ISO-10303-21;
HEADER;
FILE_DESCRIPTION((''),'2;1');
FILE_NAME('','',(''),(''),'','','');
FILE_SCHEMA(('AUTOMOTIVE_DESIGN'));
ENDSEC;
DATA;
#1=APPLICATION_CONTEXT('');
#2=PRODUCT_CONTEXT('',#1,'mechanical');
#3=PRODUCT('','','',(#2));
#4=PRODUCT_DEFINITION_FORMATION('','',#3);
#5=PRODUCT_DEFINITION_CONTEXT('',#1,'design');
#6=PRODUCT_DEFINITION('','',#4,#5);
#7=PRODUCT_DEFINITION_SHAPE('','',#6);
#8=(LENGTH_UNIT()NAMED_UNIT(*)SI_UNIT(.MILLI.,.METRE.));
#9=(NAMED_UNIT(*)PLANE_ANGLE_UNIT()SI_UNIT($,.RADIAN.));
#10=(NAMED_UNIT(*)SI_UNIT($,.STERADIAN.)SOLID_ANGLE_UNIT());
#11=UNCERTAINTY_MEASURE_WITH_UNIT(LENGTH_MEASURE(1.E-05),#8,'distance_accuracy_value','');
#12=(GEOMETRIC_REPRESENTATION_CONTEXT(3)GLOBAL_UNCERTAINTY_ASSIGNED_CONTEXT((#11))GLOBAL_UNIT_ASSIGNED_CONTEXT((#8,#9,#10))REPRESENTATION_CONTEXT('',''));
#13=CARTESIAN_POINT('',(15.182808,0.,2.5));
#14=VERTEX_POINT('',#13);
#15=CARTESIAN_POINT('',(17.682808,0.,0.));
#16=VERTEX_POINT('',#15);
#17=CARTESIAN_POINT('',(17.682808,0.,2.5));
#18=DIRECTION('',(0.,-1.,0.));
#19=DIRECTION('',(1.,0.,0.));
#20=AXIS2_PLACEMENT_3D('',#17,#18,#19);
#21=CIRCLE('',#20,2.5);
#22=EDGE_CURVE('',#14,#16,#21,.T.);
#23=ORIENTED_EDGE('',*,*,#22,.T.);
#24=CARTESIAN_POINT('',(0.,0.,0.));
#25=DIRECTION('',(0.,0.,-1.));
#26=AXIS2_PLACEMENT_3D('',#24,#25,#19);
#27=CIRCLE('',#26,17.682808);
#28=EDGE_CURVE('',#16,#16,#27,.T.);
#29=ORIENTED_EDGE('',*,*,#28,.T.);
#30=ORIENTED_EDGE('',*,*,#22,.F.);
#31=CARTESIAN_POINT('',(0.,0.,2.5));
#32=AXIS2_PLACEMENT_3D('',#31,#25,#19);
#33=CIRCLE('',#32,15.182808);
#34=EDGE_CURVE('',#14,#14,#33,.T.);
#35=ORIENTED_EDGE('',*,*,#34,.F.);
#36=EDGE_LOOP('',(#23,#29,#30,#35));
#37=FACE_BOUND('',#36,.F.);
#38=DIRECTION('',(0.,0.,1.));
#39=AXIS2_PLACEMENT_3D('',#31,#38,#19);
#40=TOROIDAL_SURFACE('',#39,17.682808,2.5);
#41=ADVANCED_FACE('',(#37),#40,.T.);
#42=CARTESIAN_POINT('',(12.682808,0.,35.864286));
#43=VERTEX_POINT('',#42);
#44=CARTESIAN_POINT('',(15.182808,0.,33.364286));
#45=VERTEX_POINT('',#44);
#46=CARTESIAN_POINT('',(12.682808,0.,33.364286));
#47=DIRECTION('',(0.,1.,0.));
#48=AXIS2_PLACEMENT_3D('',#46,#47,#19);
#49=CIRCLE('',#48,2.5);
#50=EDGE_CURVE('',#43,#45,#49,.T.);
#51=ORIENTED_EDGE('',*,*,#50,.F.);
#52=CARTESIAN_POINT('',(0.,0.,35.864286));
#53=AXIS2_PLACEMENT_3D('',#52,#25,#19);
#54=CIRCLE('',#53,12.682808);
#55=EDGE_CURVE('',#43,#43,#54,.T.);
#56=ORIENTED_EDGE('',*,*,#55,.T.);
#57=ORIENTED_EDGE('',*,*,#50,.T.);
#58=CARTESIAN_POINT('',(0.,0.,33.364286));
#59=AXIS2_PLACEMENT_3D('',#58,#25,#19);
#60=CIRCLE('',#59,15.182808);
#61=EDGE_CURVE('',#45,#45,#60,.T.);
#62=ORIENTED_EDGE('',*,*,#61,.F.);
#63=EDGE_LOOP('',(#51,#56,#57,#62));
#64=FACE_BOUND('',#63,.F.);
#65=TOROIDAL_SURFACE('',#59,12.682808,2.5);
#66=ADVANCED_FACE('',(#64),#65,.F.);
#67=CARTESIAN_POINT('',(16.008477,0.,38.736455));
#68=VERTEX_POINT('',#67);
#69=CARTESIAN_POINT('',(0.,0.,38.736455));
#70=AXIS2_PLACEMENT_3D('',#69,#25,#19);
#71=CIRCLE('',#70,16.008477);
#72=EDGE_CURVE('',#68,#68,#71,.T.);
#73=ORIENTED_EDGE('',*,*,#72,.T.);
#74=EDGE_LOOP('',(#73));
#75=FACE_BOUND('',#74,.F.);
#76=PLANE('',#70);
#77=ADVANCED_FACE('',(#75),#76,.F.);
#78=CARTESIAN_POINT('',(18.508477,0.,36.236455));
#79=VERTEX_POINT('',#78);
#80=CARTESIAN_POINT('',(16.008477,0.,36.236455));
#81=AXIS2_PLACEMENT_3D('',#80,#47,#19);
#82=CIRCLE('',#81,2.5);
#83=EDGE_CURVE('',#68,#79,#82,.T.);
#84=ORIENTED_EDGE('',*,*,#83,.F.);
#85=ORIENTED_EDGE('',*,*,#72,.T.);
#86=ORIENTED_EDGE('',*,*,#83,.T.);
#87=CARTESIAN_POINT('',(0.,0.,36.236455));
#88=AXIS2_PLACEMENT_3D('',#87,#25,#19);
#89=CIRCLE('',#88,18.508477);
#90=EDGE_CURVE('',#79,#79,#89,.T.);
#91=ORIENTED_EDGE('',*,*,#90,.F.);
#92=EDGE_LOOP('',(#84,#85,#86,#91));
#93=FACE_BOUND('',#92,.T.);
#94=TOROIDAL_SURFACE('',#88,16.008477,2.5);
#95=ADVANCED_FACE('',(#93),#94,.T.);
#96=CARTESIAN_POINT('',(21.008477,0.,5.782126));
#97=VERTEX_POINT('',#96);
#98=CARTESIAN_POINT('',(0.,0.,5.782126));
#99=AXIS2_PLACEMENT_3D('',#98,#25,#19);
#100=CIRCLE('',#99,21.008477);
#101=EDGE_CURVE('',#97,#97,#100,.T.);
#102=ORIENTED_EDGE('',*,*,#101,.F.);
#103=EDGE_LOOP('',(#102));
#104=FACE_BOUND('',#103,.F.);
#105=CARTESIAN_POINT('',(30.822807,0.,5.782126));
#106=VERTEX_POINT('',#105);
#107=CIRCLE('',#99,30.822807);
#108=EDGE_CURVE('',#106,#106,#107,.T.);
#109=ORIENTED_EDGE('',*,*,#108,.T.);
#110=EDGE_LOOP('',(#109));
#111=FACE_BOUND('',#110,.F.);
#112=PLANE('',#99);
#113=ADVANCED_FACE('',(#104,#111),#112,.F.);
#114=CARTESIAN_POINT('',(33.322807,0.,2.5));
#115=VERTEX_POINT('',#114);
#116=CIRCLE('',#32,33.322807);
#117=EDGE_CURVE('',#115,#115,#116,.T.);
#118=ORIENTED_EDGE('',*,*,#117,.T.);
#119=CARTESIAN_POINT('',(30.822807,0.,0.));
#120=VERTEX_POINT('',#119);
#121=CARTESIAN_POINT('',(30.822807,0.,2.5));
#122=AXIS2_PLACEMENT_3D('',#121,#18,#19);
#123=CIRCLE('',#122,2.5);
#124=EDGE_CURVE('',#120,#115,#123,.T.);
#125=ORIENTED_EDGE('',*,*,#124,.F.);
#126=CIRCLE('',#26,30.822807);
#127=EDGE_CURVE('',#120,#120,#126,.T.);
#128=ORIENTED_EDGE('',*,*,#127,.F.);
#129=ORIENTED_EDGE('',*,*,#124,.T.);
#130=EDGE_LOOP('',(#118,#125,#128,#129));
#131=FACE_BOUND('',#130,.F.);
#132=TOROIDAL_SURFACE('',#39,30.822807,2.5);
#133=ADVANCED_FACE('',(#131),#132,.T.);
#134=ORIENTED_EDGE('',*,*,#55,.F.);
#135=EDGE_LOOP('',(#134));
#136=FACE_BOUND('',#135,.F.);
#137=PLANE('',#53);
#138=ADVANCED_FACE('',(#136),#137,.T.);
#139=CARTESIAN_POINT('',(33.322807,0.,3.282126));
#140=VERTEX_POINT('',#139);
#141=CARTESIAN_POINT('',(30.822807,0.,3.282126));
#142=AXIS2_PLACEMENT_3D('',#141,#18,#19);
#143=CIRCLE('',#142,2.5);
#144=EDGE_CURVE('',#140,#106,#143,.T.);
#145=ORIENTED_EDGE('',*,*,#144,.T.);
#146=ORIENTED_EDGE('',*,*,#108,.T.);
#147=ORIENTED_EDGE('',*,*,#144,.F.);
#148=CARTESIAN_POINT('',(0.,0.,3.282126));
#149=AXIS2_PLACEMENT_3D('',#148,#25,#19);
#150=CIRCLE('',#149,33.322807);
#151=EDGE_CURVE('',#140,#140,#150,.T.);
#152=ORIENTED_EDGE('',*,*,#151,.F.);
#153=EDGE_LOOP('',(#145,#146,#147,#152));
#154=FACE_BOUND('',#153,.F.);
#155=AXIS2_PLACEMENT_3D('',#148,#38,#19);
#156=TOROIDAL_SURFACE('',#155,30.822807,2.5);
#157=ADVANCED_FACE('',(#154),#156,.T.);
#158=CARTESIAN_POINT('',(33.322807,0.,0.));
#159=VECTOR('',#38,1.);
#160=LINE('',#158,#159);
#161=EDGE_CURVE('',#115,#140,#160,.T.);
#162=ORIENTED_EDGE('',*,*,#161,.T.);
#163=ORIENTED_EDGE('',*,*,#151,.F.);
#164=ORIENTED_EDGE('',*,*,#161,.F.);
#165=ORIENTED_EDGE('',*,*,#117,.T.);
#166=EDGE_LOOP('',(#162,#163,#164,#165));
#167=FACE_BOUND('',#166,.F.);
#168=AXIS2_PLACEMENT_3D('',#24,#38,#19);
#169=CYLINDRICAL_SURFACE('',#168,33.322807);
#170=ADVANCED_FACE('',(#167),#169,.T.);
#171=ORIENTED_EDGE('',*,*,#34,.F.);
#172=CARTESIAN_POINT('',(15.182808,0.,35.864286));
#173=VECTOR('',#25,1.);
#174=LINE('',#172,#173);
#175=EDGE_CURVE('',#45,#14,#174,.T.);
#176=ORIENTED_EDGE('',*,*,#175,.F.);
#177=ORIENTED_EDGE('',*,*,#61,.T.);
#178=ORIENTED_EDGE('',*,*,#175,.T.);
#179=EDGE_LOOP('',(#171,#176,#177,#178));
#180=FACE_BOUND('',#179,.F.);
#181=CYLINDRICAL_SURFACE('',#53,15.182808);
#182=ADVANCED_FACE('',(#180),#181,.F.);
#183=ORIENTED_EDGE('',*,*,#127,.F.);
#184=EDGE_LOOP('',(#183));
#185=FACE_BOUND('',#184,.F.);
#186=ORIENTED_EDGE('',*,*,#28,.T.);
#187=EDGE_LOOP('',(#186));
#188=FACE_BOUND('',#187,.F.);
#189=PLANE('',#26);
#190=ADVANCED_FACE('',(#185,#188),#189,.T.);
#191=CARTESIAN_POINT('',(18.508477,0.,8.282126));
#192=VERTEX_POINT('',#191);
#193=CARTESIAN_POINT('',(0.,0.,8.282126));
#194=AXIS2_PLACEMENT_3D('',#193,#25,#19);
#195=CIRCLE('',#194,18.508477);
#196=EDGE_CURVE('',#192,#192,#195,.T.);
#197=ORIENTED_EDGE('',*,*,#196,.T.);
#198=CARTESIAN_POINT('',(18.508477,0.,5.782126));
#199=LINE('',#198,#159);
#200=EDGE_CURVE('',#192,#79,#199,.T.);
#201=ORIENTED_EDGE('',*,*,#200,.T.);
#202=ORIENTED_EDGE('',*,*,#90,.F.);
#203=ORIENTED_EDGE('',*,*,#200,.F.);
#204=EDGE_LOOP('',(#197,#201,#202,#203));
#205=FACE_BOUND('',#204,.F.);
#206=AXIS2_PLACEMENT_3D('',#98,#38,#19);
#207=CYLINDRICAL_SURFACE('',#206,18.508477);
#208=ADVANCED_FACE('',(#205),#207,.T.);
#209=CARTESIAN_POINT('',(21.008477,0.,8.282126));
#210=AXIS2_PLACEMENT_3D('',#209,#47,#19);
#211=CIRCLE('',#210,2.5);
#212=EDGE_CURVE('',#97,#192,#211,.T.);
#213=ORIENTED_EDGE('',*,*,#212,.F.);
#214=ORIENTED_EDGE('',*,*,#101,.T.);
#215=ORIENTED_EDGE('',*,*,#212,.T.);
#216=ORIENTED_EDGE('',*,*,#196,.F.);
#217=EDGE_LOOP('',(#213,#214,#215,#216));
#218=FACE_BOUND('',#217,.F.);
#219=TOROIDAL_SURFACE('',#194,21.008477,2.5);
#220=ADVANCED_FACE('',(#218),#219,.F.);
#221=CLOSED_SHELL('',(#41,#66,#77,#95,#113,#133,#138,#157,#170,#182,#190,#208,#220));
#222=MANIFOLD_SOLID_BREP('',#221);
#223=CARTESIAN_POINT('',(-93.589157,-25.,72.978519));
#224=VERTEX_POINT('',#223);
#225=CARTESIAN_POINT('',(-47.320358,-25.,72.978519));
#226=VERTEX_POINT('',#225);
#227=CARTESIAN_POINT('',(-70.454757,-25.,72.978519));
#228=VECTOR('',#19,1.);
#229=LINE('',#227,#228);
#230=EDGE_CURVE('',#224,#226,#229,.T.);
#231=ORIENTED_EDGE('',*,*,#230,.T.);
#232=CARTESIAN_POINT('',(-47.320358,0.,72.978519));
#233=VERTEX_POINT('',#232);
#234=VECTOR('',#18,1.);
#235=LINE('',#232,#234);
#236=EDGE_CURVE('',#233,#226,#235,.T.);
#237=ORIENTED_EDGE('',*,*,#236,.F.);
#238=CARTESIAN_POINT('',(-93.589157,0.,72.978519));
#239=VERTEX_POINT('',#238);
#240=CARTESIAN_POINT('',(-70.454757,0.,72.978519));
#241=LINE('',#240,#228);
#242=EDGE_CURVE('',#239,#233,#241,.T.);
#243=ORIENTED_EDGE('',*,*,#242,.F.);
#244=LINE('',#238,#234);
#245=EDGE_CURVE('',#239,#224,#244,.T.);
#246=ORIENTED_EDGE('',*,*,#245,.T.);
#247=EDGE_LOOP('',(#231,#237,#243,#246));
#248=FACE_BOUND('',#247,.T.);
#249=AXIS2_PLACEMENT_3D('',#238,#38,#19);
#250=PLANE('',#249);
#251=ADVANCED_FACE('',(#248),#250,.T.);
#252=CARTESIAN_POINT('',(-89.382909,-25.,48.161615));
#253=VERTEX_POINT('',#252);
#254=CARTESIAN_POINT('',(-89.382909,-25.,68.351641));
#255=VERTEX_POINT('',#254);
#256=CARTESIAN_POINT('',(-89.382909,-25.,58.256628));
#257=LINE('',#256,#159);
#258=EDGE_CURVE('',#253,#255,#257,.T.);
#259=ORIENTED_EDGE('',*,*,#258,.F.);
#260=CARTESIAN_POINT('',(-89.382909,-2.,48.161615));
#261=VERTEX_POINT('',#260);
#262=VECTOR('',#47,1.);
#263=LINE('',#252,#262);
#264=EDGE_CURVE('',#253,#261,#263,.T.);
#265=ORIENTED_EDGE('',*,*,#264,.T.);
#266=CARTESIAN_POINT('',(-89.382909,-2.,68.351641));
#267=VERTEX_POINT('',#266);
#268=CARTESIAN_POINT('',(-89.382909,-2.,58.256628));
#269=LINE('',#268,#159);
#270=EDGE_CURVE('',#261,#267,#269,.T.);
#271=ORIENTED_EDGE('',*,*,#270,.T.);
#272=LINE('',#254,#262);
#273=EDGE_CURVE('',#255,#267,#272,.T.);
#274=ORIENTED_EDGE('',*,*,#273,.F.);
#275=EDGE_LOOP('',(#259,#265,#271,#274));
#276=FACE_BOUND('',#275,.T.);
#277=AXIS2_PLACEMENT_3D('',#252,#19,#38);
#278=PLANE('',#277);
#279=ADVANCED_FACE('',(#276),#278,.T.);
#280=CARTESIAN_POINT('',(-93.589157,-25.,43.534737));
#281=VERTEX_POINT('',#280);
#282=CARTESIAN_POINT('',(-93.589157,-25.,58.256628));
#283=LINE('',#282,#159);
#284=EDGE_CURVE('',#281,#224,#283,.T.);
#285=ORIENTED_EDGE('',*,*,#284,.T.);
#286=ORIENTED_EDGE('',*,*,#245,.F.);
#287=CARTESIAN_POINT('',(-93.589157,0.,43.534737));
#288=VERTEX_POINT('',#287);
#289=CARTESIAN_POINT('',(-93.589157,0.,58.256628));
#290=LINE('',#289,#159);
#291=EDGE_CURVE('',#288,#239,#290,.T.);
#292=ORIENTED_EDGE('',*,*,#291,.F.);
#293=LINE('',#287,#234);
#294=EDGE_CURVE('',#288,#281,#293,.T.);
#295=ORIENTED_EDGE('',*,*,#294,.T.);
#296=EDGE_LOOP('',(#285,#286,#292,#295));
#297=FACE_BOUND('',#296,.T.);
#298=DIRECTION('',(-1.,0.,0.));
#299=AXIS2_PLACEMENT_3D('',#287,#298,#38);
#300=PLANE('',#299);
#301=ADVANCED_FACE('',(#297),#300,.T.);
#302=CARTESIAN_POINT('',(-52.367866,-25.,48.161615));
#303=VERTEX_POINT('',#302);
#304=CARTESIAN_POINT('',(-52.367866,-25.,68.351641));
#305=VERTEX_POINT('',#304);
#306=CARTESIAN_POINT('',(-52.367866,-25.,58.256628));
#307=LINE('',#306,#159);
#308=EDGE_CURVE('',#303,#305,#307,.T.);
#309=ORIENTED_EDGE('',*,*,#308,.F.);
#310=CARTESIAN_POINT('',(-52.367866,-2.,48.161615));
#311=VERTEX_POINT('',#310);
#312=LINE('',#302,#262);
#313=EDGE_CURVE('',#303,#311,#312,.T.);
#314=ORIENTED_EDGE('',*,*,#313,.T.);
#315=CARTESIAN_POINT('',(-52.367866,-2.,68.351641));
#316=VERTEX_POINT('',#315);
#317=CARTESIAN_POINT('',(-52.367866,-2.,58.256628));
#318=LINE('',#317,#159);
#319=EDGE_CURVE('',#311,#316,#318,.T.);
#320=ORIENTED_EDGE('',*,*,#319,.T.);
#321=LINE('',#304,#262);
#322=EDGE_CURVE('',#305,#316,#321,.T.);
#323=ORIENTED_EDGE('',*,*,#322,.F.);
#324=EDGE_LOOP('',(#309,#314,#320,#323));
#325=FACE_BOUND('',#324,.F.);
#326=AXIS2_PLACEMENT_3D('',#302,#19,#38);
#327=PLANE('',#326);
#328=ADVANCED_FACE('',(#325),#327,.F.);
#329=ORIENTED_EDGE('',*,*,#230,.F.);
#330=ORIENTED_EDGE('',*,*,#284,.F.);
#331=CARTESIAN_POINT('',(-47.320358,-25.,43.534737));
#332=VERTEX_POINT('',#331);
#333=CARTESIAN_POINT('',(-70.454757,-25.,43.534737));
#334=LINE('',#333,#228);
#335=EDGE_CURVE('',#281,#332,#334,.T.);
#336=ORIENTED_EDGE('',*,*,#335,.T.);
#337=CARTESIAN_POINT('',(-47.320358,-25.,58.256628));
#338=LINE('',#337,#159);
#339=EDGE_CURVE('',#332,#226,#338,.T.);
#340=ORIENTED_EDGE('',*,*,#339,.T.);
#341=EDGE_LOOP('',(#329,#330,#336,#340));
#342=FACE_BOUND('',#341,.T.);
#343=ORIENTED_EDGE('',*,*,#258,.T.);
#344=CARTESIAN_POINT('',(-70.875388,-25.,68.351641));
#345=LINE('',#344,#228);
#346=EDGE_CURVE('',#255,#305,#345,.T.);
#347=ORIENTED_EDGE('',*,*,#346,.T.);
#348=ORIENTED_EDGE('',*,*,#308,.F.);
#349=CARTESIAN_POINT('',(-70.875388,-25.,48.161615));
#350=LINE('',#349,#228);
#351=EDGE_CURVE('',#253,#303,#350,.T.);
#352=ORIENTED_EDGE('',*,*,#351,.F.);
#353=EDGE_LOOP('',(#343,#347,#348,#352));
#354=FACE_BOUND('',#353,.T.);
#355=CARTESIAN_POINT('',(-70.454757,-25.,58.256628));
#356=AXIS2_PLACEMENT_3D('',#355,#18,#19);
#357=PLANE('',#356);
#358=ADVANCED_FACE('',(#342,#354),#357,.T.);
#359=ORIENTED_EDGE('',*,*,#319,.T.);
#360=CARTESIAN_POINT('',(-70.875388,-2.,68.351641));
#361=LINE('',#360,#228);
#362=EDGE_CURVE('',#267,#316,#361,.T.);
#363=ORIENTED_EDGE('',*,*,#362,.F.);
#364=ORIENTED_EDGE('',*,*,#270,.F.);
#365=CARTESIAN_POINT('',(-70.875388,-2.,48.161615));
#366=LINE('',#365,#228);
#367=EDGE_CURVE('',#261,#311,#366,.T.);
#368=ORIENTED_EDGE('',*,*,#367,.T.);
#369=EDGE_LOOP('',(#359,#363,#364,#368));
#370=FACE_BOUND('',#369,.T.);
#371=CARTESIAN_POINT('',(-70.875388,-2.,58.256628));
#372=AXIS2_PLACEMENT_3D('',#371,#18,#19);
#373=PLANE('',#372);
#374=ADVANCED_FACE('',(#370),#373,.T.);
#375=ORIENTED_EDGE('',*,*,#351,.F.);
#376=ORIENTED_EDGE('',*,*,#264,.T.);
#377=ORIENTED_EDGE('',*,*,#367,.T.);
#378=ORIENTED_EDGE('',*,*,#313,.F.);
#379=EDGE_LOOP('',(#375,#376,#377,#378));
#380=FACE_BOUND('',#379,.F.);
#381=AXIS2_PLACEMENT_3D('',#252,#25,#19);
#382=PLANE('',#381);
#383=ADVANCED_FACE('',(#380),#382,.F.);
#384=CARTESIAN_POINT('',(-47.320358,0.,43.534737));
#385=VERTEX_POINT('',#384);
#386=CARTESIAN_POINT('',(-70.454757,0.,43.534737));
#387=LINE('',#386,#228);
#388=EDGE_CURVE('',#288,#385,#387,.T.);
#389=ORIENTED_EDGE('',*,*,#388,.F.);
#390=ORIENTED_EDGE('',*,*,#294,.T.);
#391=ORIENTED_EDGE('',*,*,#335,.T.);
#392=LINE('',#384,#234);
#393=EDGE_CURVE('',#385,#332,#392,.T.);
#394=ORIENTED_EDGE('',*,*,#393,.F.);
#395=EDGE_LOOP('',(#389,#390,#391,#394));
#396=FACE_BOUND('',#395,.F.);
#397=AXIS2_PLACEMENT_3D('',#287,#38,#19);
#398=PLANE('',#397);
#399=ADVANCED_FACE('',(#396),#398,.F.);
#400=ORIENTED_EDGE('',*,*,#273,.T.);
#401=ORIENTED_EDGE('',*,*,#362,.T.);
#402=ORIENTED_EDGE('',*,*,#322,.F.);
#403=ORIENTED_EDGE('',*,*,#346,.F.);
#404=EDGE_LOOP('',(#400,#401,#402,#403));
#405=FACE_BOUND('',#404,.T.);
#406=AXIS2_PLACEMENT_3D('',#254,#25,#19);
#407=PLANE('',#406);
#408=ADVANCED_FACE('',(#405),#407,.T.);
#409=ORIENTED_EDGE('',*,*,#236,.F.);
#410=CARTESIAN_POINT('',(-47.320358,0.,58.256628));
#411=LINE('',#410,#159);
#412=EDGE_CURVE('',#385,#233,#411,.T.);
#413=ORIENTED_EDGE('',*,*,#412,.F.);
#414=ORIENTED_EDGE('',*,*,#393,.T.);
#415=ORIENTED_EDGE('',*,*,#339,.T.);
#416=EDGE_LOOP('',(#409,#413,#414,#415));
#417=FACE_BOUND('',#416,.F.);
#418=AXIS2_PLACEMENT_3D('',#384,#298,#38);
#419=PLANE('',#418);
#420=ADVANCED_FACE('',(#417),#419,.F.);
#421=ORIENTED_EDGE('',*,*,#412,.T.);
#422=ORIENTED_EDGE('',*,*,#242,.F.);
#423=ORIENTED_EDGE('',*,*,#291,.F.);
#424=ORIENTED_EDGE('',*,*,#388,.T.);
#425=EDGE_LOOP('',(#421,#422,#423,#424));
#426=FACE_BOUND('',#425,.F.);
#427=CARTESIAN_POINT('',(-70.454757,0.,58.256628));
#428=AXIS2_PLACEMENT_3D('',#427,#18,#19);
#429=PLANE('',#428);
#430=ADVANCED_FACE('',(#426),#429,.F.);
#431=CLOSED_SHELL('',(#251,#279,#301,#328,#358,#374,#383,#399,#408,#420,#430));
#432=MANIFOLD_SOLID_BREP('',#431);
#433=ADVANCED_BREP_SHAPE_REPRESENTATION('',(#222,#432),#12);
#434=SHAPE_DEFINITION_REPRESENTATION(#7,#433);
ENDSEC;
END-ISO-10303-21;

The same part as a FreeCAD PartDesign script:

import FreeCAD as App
import Part
import Sketcher

V = App.Vector


def edges_at(feature, points):
    """Names of the edges that pass closest to the given points."""
    edges = feature.Shape.Edges
    near = lambda p: min(range(len(edges)), key=lambda i: edges[i].distToShape(Part.Vertex(*p))[0])
    return sorted({f"Edge{near(p) + 1}" for p in points})


def add_polygon(sketch, points):
    """Adds a closed chain of lines whose ends are joined by coincident constraints."""
    first, n = sketch.GeometryCount, len(points)
    for a, b in zip(points, points[1:] + points[:1]):
        sketch.addGeometry(Part.LineSegment(App.Vector(*a, 0), App.Vector(*b, 0)), False)
    for i in range(n):
        sketch.addConstraint(Sketcher.Constraint("Coincident", first + i, 2, first + (i + 1) % n, 1))

doc = App.newDocument("Part")
body = doc.addObject("PartDesign::Body", "Body")

sketch1 = body.newObject("Sketcher::SketchObject", "Sketch")
sketch1.AttachmentSupport = (doc.getObject("XZ_Plane"), [""])
sketch1.MapMode = "FlatFace"
add_polygon(sketch1, [(18.5, 38.7), (0, 38.7), (0, 35.9), (15.2, 35.9), (15.2, 0), (33.3, 0), (33.3, 5.8), (18.5, 5.8)])
sketch1.addConstraint(Sketcher.Constraint("Horizontal", 0))
sketch1.addConstraint(Sketcher.Constraint("Vertical", 1))
sketch1.addConstraint(Sketcher.Constraint("Horizontal", 2))
sketch1.addConstraint(Sketcher.Constraint("Vertical", 3))
sketch1.addConstraint(Sketcher.Constraint("Horizontal", 4))
sketch1.addConstraint(Sketcher.Constraint("Vertical", 5))
sketch1.addConstraint(Sketcher.Constraint("Horizontal", 6))
sketch1.addConstraint(Sketcher.Constraint("Vertical", 7))
sketch1.addConstraint(Sketcher.Constraint("PointOnObject", 0, 2, -2))
sketch1.addConstraint(Sketcher.Constraint("PointOnObject", 3, 2, -1))
sketch1.addConstraint(Sketcher.Constraint("DistanceX", 4, 1, 4, 2, 18.139999))
sketch1.addConstraint(Sketcher.Constraint("DistanceX", 6, 2, 6, 1, 14.81433))
sketch1.addConstraint(Sketcher.Constraint("DistanceY", 1, 2, 1, 1, 2.872169))
sketch1.addConstraint(Sketcher.Constraint("DistanceY", 7, 1, 7, 2, 32.954329))
sketch1.addConstraint(Sketcher.Constraint("DistanceX", 0, 2, 0, 1, 18.508477))
sketch1.addConstraint(Sketcher.Constraint("DistanceY", 3, 2, 3, 1, 35.864286))
revolution = body.newObject("PartDesign::Revolution", "Revolution")
revolution.Profile = sketch1
revolution.ReferenceAxis = (sketch1, ["V_Axis"])
revolution.Angle = 360
doc.recompute()

fillet = body.newObject("PartDesign::Fillet", "Fillet")
fillet.Base = (revolution, edges_at(revolution, [
    (-15.183, 0, 35.864),
    (-15.183, 0, 0),
    (-33.323, 0, 5.782),
    (-33.323, 0, 0),
    (-18.508, 0, 5.782),
    (-18.508, 0, 38.736),
]))
fillet.Radius = 2.5
body2 = doc.addObject("PartDesign::Body", "Body001")

sketch2 = body2.newObject("Sketcher::SketchObject", "Sketch001")
sketch2.AttachmentSupport = (doc.getObject("XZ_Plane001"), [""])
sketch2.MapMode = "FlatFace"
add_polygon(sketch2, [(-94, 73), (-94, 44), (-47, 44), (-47, 73)])
sketch2.addConstraint(Sketcher.Constraint("Vertical", 0))
sketch2.addConstraint(Sketcher.Constraint("Horizontal", 1))
sketch2.addConstraint(Sketcher.Constraint("Vertical", 2))
sketch2.addConstraint(Sketcher.Constraint("Horizontal", 3))
sketch2.addConstraint(Sketcher.Constraint("DistanceX", 1, 1, 1, 2, 46.268799))
sketch2.addConstraint(Sketcher.Constraint("DistanceY", 0, 2, 0, 1, 29.443782))
sketch2.addConstraint(Sketcher.Constraint("DistanceY", -1, 1, 2, 2, 72.978519))
sketch2.addConstraint(Sketcher.Constraint("DistanceX", 0, 2, -1, 1, 93.589157))
pad1 = body2.newObject("PartDesign::Pad", "Pad")
pad1.Profile = sketch2
pad1.Length = 25

sketch3 = body2.newObject("Sketcher::SketchObject", "Sketch002")
sketch3.AttachmentSupport = (doc.getObject("XZ_Plane001"), [""])
sketch3.MapMode = "FlatFace"
sketch3.AttachmentOffset = App.Placement(V(0, 0, 25), App.Rotation())
add_polygon(sketch3, [(-89, 68), (-89, 48), (-52, 48), (-52, 68)])
sketch3.addConstraint(Sketcher.Constraint("Vertical", 0))
sketch3.addConstraint(Sketcher.Constraint("Horizontal", 1))
sketch3.addConstraint(Sketcher.Constraint("Vertical", 2))
sketch3.addConstraint(Sketcher.Constraint("Horizontal", 3))
sketch3.addConstraint(Sketcher.Constraint("DistanceX", 1, 1, 1, 2, 37.015043))
sketch3.addConstraint(Sketcher.Constraint("DistanceY", 0, 2, 0, 1, 20.190026))
sketch3.addConstraint(Sketcher.Constraint("DistanceX", 0, 2, -1, 1, 89.382909))
sketch3.addConstraint(Sketcher.Constraint("DistanceY", -1, 1, 2, 2, 68.351641))
pocket1 = body2.newObject("PartDesign::Pocket", "Pocket")
pocket1.Profile = sketch3
pocket1.Length = 23

doc.recompute()
